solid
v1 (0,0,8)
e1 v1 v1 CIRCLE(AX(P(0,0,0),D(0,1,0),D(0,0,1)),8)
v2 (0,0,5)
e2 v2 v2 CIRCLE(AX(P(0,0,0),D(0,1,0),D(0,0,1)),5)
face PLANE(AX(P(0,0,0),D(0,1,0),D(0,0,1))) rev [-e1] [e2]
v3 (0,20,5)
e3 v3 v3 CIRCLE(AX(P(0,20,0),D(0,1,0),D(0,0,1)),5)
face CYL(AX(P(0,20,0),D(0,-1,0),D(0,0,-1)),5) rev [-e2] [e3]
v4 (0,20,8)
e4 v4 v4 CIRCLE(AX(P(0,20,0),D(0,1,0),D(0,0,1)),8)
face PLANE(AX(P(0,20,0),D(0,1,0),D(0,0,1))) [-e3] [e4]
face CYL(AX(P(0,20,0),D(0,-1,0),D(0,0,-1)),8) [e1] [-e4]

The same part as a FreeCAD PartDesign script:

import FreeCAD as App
import Part
import Sketcher
from FreeCAD import Vector
Q = App.Units.Quantity

doc = App.newDocument("Part")
body = doc.addObject("PartDesign::Body", "Body")

sketch1 = body.newObject("Sketcher::SketchObject", "Sketch")
sketch1.AttachmentSupport = (doc.getObject("XZ_Plane"), [""])
sketch1.MapMode = "FlatFace"
sketch1.addGeometry(Part.Circle(Vector(0, 0, 0), Vector(0, 0, 1), 8), False)
sketch1.addGeometry(Part.Circle(Vector(0, 0, 0), Vector(0, 0, 1), 5), False)
sketch1.addConstraint(Sketcher.Constraint("Coincident", 0, 3, -1, 1))
sketch1.addConstraint(Sketcher.Constraint("Coincident", 1, 3, -1, 1))
sketch1.addConstraint(Sketcher.Constraint("Diameter", 0, Q("16 mm")))
sketch1.addConstraint(Sketcher.Constraint("Diameter", 1, Q("10 mm")))
pad1 = body.newObject("PartDesign::Pad", "Pad")
pad1.Profile = sketch1
pad1.Length = 20
pad1.Reversed = True

doc.recompute()
